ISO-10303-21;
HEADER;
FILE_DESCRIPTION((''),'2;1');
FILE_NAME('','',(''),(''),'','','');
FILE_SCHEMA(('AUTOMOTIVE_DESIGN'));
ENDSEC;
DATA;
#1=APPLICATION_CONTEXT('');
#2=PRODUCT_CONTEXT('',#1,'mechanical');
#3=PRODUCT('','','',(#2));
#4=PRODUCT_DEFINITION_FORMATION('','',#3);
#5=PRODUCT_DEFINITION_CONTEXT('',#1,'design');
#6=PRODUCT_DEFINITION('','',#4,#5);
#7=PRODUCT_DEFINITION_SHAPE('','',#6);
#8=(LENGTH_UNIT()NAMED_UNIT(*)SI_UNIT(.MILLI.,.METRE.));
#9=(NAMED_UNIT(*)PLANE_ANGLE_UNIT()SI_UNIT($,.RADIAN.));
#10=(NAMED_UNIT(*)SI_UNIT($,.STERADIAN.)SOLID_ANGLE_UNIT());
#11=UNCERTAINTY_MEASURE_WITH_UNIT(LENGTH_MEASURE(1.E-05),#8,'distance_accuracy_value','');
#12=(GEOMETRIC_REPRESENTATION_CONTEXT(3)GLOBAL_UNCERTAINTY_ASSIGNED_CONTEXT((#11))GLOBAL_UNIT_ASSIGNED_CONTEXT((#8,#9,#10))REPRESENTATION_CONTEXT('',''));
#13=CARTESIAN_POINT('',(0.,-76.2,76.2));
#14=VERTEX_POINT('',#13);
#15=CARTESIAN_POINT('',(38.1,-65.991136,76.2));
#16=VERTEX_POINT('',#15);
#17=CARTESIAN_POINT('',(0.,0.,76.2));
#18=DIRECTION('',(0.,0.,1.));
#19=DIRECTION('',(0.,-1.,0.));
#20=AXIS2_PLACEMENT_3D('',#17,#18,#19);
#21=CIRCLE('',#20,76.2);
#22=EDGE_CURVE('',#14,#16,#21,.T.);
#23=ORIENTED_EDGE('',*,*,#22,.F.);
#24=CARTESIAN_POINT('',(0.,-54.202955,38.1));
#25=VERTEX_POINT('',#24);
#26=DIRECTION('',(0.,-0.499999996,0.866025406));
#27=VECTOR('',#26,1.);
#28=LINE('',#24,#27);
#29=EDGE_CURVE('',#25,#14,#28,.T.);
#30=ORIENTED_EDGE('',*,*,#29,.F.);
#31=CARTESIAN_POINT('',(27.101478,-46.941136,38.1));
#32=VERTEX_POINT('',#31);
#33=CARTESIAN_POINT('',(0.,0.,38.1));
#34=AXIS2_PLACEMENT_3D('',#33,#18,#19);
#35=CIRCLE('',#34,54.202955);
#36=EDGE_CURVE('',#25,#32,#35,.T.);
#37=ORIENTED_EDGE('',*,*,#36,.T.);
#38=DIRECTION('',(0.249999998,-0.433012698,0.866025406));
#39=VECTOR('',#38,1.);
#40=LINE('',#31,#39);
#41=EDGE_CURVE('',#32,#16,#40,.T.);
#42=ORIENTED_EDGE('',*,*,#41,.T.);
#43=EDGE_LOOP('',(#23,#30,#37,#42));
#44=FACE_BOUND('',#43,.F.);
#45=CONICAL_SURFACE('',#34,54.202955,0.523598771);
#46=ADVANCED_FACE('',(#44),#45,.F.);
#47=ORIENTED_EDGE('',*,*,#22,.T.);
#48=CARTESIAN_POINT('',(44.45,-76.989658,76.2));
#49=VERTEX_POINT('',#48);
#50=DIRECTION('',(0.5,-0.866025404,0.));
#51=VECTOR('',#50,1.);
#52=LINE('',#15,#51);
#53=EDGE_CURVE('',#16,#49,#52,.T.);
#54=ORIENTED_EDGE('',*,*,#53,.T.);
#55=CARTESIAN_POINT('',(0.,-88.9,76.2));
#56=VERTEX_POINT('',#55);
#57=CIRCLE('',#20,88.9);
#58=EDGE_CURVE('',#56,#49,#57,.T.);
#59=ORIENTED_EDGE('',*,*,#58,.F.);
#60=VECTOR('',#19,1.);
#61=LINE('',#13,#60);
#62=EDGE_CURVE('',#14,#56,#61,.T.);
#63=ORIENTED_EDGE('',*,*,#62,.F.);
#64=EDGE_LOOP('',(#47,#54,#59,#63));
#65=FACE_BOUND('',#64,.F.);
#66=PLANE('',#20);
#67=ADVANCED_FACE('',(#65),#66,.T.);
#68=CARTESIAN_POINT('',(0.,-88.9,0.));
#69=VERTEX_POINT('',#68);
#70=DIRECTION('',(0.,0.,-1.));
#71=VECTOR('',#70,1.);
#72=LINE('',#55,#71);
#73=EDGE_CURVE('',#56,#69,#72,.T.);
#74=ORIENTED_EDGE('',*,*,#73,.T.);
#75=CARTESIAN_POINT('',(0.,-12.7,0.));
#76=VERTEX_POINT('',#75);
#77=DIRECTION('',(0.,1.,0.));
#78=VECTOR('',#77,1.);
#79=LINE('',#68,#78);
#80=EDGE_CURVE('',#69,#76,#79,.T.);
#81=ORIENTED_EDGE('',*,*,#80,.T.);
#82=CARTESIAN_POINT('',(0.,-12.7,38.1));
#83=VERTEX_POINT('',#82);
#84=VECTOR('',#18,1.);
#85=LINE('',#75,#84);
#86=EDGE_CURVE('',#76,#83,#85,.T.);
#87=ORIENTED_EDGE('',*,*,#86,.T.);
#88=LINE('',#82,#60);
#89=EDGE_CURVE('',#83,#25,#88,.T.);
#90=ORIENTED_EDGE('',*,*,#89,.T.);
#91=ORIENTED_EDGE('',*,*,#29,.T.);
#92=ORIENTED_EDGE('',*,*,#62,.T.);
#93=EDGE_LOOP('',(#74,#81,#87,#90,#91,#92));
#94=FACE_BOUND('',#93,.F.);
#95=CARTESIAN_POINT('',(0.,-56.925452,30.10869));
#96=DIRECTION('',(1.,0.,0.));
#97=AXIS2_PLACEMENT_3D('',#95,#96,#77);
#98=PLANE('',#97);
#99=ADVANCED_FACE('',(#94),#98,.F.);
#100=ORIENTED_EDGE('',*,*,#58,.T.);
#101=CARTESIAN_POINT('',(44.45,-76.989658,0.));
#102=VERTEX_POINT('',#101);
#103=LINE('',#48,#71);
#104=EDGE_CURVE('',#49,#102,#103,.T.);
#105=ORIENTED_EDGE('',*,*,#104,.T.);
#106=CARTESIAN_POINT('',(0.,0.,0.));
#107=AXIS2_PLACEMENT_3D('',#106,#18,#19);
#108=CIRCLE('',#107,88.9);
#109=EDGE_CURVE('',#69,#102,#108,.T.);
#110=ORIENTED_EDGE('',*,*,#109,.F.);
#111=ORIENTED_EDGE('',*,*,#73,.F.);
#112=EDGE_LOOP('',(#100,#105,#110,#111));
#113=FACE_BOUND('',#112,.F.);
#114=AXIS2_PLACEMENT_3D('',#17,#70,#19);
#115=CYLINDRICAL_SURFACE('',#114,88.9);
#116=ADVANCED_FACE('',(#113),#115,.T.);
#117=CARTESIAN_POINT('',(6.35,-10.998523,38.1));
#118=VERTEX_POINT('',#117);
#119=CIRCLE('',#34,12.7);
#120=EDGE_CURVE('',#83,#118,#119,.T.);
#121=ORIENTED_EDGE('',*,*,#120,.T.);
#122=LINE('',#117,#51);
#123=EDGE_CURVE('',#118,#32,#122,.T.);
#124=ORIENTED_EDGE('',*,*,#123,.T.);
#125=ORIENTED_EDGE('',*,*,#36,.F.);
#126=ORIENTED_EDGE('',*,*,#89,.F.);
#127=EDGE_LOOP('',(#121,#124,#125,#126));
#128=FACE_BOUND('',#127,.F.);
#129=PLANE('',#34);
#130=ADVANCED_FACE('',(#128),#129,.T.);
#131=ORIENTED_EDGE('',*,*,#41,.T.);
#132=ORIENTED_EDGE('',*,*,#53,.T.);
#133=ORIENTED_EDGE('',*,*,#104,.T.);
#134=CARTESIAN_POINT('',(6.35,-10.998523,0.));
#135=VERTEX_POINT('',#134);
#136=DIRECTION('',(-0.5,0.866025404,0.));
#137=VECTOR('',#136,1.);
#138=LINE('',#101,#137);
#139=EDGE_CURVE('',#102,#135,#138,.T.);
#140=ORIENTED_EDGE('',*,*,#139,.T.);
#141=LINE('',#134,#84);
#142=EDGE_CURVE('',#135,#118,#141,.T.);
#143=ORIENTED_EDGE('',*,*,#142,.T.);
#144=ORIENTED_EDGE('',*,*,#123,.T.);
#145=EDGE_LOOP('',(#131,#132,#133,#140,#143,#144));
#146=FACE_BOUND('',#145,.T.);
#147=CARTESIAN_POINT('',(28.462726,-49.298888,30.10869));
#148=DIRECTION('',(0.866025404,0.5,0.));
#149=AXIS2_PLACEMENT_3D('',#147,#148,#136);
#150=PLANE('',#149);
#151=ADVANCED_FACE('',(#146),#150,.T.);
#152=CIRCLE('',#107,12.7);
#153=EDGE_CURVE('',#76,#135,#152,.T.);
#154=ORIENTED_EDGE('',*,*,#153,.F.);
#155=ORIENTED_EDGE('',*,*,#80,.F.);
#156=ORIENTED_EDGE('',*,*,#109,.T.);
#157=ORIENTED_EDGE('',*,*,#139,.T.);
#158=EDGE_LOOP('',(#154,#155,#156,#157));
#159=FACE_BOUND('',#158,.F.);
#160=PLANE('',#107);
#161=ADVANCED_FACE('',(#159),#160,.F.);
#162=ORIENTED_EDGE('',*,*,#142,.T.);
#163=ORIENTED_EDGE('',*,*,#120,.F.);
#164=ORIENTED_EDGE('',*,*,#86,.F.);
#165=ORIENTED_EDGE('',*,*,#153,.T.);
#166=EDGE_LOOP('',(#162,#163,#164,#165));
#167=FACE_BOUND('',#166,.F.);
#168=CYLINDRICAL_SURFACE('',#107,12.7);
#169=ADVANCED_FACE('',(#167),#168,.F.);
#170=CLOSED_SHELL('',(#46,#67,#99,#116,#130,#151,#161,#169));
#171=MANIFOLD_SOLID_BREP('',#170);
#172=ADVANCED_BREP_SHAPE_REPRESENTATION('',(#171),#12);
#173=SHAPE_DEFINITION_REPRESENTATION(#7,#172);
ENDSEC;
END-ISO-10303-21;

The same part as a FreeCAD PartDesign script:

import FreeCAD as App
import Part
import Sketcher

V = App.Vector
Q = App.Units.Quantity

doc = App.newDocument("Part")
body = doc.addObject("PartDesign::Body", "Body")

sketch1 = body.newObject("Sketcher::SketchObject", "Sketch")
sketch1.AttachmentSupport = (doc.getObject("YZ_Plane"), [""])
sketch1.MapMode = "FlatFace"
sketch1.addGeometry(Part.LineSegment(V(-89, 0, 0), V(-13, 0, 0)), False)
sketch1.addGeometry(Part.LineSegment(V(-13, 0, 0), V(-13, 38, 0)), False)
sketch1.addGeometry(Part.LineSegment(V(-13, 38, 0), V(-54, 38, 0)), False)
sketch1.addGeometry(Part.LineSegment(V(-54, 38, 0), V(-76, 76, 0)), False)
sketch1.addGeometry(Part.LineSegment(V(-76, 76, 0), V(-89, 76, 0)), False)
sketch1.addGeometry(Part.LineSegment(V(-89, 76, 0), V(-89, 0, 0)), False)
sketch1.addConstraint(Sketcher.Constraint("Coincident", 0, 2, 1, 1))
sketch1.addConstraint(Sketcher.Constraint("Coincident", 1, 2, 2, 1))
sketch1.addConstraint(Sketcher.Constraint("Coincident", 2, 2, 3, 1))
sketch1.addConstraint(Sketcher.Constraint("Coincident", 3, 2, 4, 1))
sketch1.addConstraint(Sketcher.Constraint("Coincident", 4, 2, 5, 1))
sketch1.addConstraint(Sketcher.Constraint("Coincident", 5, 2, 0, 1))
sketch1.addConstraint(Sketcher.Constraint("Horizontal", 0))
sketch1.addConstraint(Sketcher.Constraint("Vertical", 1))
sketch1.addConstraint(Sketcher.Constraint("Horizontal", 2))
sketch1.addConstraint(Sketcher.Constraint("Horizontal", 4))
sketch1.addConstraint(Sketcher.Constraint("Vertical", 5))
sketch1.addConstraint(Sketcher.Constraint("PointOnObject", 0, 2, -1))
sketch1.addConstraint(Sketcher.Constraint("Equal", 0, 5))
sketch1.addConstraint(Sketcher.Constraint("DistanceX", 0, 1, 0, 2, Q("3 in")))
sketch1.addConstraint(Sketcher.Constraint("DistanceX", 4, 2, 4, 1, Q("0.5 in")))
sketch1.addConstraint(Sketcher.Constraint("DistanceY", 1, 1, 1, 2, Q("1.5 in")))
sketch1.addConstraint(Sketcher.Constraint("DistanceX", 3, 2, -1, 1, Q("3 in")))
sketch1.addConstraint(Sketcher.Constraint("Angle", 3, Q("120 deg")))
revolution = body.newObject("PartDesign::Revolution", "Revolution")
revolution.Profile = sketch1
revolution.ReferenceAxis = (sketch1, ["V_Axis"])
revolution.Angle = 30

doc.recompute()
